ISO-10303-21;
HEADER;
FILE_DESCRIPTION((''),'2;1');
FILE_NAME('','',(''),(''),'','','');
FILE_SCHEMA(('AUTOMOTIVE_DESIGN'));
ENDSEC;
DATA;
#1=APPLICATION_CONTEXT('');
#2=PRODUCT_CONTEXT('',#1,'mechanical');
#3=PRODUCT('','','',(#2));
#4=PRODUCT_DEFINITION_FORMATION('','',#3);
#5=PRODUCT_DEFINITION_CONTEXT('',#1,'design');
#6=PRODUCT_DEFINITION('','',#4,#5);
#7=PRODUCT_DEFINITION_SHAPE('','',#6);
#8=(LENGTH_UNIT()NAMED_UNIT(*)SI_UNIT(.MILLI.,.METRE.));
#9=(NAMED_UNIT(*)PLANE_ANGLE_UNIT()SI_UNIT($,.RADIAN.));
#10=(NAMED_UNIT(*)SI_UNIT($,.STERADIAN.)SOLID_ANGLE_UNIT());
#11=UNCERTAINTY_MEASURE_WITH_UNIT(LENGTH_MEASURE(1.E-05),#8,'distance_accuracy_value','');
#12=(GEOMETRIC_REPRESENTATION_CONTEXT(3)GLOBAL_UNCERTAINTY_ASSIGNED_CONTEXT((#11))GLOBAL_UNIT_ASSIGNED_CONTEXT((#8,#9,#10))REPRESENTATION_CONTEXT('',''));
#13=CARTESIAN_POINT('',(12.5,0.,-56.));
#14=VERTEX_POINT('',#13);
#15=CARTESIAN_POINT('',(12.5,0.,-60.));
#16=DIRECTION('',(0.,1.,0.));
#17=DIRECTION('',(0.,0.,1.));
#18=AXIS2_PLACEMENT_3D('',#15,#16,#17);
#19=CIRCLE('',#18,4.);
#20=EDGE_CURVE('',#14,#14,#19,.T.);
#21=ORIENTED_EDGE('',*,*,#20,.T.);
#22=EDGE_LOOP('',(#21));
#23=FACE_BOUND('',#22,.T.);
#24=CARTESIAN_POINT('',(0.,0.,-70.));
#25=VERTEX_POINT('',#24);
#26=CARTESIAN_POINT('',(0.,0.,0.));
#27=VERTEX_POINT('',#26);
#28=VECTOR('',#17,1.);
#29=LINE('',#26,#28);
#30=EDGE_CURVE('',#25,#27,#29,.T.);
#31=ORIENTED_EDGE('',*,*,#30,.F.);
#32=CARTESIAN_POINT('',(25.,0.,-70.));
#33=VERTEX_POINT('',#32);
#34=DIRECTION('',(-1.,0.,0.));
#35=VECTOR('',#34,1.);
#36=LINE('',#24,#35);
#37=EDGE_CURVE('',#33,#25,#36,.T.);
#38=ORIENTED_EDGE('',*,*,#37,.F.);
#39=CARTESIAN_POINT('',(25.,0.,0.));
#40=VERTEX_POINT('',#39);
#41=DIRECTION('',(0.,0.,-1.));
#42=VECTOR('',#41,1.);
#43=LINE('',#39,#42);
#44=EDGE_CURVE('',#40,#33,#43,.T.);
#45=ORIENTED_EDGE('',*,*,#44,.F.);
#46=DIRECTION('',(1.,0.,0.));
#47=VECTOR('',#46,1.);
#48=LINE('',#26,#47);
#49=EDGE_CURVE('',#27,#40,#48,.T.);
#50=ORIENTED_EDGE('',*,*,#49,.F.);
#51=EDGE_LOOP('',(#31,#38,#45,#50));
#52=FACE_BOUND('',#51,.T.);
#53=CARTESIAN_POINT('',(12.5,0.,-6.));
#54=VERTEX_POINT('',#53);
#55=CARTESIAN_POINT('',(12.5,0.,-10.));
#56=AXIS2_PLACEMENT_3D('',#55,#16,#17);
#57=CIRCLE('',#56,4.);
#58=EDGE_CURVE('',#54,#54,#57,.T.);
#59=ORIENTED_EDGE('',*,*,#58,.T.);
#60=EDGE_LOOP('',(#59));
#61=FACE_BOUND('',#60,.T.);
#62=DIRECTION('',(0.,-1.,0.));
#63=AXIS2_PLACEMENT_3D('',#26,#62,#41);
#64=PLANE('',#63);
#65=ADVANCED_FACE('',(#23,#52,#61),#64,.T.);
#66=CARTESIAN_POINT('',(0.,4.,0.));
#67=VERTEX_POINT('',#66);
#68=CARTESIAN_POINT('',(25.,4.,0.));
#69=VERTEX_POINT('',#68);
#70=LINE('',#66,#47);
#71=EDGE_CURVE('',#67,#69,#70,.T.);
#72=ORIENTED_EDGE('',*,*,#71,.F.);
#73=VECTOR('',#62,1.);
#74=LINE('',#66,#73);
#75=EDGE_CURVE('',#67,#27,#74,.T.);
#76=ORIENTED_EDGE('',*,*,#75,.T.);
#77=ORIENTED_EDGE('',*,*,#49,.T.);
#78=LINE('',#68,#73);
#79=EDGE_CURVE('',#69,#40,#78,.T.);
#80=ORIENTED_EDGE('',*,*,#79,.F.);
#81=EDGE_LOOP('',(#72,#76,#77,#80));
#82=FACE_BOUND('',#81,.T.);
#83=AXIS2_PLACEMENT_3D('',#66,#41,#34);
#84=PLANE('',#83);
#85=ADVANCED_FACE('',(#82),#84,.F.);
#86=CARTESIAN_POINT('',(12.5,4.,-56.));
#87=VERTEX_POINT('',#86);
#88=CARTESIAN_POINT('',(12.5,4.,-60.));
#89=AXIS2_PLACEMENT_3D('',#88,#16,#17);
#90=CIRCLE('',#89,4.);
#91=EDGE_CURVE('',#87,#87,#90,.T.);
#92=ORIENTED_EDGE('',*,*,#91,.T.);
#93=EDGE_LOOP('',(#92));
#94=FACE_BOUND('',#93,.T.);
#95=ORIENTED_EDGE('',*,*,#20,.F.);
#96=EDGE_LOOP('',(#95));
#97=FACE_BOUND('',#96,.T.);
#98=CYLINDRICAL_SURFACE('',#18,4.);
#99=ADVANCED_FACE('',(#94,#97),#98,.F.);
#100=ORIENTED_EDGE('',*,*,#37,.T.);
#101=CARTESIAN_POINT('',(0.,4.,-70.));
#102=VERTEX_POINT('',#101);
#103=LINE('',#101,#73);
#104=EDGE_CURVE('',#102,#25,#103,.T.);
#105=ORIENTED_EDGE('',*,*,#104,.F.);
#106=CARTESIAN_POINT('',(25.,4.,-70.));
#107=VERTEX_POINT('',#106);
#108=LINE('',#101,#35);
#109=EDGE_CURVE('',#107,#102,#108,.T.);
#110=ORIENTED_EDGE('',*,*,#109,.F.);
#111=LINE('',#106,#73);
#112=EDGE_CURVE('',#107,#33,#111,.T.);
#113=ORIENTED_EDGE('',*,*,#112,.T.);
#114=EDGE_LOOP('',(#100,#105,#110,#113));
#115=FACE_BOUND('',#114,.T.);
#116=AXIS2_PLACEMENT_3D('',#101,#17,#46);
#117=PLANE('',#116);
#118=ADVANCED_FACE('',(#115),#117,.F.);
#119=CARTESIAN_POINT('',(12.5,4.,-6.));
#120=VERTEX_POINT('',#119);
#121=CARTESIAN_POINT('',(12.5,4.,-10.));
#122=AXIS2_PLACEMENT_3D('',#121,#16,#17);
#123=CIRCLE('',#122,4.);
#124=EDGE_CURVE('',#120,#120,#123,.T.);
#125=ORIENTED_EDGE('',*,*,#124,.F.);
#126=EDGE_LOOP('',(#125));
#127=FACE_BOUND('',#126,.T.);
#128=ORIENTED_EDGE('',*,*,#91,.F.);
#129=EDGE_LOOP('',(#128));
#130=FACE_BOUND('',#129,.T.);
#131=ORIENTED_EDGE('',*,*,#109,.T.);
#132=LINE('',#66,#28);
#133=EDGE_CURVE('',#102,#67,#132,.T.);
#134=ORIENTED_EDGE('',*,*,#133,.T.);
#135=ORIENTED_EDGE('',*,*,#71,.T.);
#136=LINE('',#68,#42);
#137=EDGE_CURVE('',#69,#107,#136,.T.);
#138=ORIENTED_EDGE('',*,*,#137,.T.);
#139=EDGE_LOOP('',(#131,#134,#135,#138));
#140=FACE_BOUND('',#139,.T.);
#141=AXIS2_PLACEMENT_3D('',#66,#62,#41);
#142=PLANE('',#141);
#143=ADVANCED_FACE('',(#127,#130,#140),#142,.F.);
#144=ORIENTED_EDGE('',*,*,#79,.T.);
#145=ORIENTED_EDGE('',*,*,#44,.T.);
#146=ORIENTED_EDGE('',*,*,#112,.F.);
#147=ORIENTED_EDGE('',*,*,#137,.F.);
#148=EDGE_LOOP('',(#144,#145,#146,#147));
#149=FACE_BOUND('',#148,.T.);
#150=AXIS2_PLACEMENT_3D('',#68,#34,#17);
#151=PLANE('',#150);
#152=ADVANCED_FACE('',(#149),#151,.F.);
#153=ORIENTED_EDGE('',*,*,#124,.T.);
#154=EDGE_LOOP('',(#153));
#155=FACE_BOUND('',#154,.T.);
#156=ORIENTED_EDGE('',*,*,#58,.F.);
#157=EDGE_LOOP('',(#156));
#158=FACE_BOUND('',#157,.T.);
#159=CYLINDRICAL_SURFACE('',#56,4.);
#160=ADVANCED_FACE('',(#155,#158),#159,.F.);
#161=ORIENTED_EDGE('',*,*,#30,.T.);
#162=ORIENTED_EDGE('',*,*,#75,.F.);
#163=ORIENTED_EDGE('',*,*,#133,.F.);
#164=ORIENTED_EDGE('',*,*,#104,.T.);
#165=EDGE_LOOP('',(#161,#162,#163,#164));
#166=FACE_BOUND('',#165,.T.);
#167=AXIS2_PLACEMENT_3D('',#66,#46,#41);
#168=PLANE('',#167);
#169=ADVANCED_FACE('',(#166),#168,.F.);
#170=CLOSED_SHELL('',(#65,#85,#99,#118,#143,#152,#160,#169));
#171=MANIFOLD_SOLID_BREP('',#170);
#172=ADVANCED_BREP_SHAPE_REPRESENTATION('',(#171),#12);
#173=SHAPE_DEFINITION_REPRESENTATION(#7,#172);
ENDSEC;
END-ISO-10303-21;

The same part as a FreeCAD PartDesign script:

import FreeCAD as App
import Part
import Sketcher
Q = App.Units.Quantity


def add_polygon(sketch, points):
    """Adds a closed chain of lines whose ends are joined by coincident constraints."""
    first, n = sketch.GeometryCount, len(points)
    for a, b in zip(points, points[1:] + points[:1]):
        sketch.addGeometry(Part.LineSegment(App.Vector(*a, 0), App.Vector(*b, 0)), False)
    for i in range(n):
        sketch.addConstraint(Sketcher.Constraint("Coincident", first + i, 2, first + (i + 1) % n, 1))

doc = App.newDocument("Part")
body = doc.addObject("PartDesign::Body", "Body")

sketch1 = body.newObject("Sketcher::SketchObject", "Sketch")
sketch1.AttachmentSupport = (doc.getObject("XZ_Plane"), [""])
sketch1.MapMode = "FlatFace"
add_polygon(sketch1, [(0, -70), (0, 0), (25, 0), (25, -70)])
sketch1.addConstraint([
    Sketcher.Constraint("Vertical", 0),
    Sketcher.Constraint("Horizontal", 1),
    Sketcher.Constraint("Vertical", 2),
    Sketcher.Constraint("Horizontal", 3),
    Sketcher.Constraint("Coincident", 0, 2, -1, 1),
    Sketcher.Constraint("DistanceX", 1, 1, 1, 2, Q("25 mm")),
    Sketcher.Constraint("DistanceY", 0, 1, 0, 2, Q("70 mm")),
])
pad1 = body.newObject("PartDesign::Pad", "Pad")
pad1.Profile = sketch1
pad1.Length = 4
pad1.Reversed = True

sketch2 = body.newObject("Sketcher::SketchObject", "Sketch001")
sketch2.AttachmentSupport = (doc.getObject("XZ_Plane"), [""])
sketch2.MapMode = "FlatFace"
sketch2.AttachmentOffset = App.Placement(App.Vector(0, 0, -4), App.Rotation())
sketch2.addGeometry([
    Part.Circle(App.Vector(12.5, -60, 0), App.Vector(0, 0, 1), 4),
    Part.Circle(App.Vector(12.5, -10, 0), App.Vector(0, 0, 1), 4),
], False)
sketch2.addConstraint([
    Sketcher.Constraint("Equal", 0, 1),
    Sketcher.Constraint("Vertical", 0, 3, 1, 3),
    Sketcher.Constraint("Diameter", 0, Q("8 mm")),
    Sketcher.Constraint("DistanceY", 0, 3, -1, 1, Q("60 mm")),
    Sketcher.Constraint("DistanceY", 1, 3, -1, 1, Q("10 mm")),
    Sketcher.Constraint("DistanceX", -1, 1, 0, 3, Q("12.5 mm")),
])
pocket1 = body.newObject("PartDesign::Pocket", "Pocket")
pocket1.Profile = sketch2
pocket1.Type = "ThroughAll"
pocket1.Reversed = True

doc.recompute()
